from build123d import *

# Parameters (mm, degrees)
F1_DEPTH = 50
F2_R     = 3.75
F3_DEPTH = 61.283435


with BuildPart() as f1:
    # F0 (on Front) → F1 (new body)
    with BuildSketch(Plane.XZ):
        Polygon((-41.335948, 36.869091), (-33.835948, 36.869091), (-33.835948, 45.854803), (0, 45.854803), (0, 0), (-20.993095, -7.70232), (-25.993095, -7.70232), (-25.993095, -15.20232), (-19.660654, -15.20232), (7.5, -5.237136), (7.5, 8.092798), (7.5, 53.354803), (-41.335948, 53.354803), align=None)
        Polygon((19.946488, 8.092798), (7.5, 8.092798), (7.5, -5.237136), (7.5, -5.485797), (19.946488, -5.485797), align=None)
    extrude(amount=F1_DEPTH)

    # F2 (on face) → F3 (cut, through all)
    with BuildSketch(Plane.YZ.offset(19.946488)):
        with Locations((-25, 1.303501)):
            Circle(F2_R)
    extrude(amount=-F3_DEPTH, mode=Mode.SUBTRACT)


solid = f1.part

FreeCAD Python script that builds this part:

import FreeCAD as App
import Part
import Sketcher
Q = App.Units.Quantity

doc = App.newDocument("Part")
body = doc.addObject("PartDesign::Body", "Body")

sketch1 = body.newObject("Sketcher::SketchObject", "Sketch")
sketch1.AttachmentSupport = (doc.getObject("XZ_Plane"), [""])
sketch1.MapMode = "FlatFace"
sketch1.addGeometry([
    Part.LineSegment(App.Vector(-41.335948, 36.869091, 0), App.Vector(-33.835948, 36.869091, 0)),
    Part.LineSegment(App.Vector(-33.835948, 36.869091, 0), App.Vector(-33.835948, 45.854803, 0)),
    Part.LineSegment(App.Vector(-33.835948, 45.854803, 0), App.Vector(0, 45.854803, 0)),
    Part.LineSegment(App.Vector(0, 45.854803, 0), App.Vector(0, 0, 0)),
    Part.LineSegment(App.Vector(0, 0, 0), App.Vector(-20.993095, -7.70232, 0)),
    Part.LineSegment(App.Vector(-20.993095, -7.70232, 0), App.Vector(-25.993095, -7.70232, 0)),
    Part.LineSegment(App.Vector(-25.993095, -7.70232, 0), App.Vector(-25.993095, -15.20232, 0)),
    Part.LineSegment(App.Vector(-25.993095, -15.20232, 0), App.Vector(-19.660654, -15.20232, 0)),
    Part.LineSegment(App.Vector(-19.660654, -15.20232, 0), App.Vector(7.5, -5.237136, 0)),
    Part.LineSegment(App.Vector(7.5, -5.237136, 0), App.Vector(7.5, -5.485797, 0)),
    Part.LineSegment(App.Vector(7.5, -5.485797, 0), App.Vector(19.946488, -5.485797, 0)),
    Part.LineSegment(App.Vector(19.946488, -5.485797, 0), App.Vector(19.946488, 8.092798, 0)),
    Part.LineSegment(App.Vector(19.946488, 8.092798, 0), App.Vector(7.5, 8.092798, 0)),
    Part.LineSegment(App.Vector(7.5, 8.092798, 0), App.Vector(7.5, 53.354803, 0)),
    Part.LineSegment(App.Vector(7.5, 53.354803, 0), App.Vector(-41.335948, 53.354803, 0)),
    Part.LineSegment(App.Vector(-41.335948, 53.354803, 0), App.Vector(-41.335948, 36.869091, 0)),
], False)
sketch1.addConstraint([
    Sketcher.Constraint("Coincident", 0, 2, 1, 1),
    Sketcher.Constraint("Coincident", 1, 2, 2, 1),
    Sketcher.Constraint("Coincident", 2, 2, 3, 1),
    Sketcher.Constraint("Coincident", 3, 2, 4, 1),
    Sketcher.Constraint("Coincident", 4, 2, 5, 1),
    Sketcher.Constraint("Coincident", 5, 2, 6, 1),
    Sketcher.Constraint("Coincident", 6, 2, 7, 1),
    Sketcher.Constraint("Coincident", 7, 2, 8, 1),
    Sketcher.Constraint("Coincident", 8, 2, 9, 1),
    Sketcher.Constraint("Coincident", 9, 2, 10, 1),
    Sketcher.Constraint("Coincident", 10, 2, 11, 1),
    Sketcher.Constraint("Coincident", 11, 2, 12, 1),
    Sketcher.Constraint("Coincident", 12, 2, 13, 1),
    Sketcher.Constraint("Coincident", 13, 2, 14, 1),
    Sketcher.Constraint("Coincident", 14, 2, 15, 1),
    Sketcher.Constraint("Coincident", 15, 2, 0, 1),
    Sketcher.Constraint("Horizontal", 0),
    Sketcher.Constraint("Vertical", 1),
    Sketcher.Constraint("Horizontal", 2),
    Sketcher.Constraint("Vertical", 3),
    Sketcher.Constraint("Horizontal", 5),
    Sketcher.Constraint("Vertical", 6),
    Sketcher.Constraint("Horizontal", 7),
    Sketcher.Constraint("Vertical", 9),
    Sketcher.Constraint("Horizontal", 10),
    Sketcher.Constraint("Vertical", 11),
    Sketcher.Constraint("Horizontal", 12),
    Sketcher.Constraint("Vertical", 13),
    Sketcher.Constraint("Horizontal", 14),
    Sketcher.Constraint("Vertical", 15),
    Sketcher.Constraint("Coincident", 3, 2, -1, 1),
    Sketcher.Constraint("Parallel", 4, 8),
    Sketcher.Constraint("Vertical", 9, 2, 12, 2),
    Sketcher.Constraint("Equal", 0, 6),
    Sketcher.Constraint("DistanceX", 5, 2, 5, 1, Q("5 mm")),
    Sketcher.Constraint("DistanceX", 0, 1, 0, 2, Q("7.5 mm")),
    Sketcher.Constraint("DistanceX", -1, 1, 8, 2, Q("7.5 mm")),
    Sketcher.Constraint("DistanceY", 2, 2, 13, 2, Q("7.5 mm")),
    Sketcher.Constraint("DistanceX", 2, 1, 2, 2, Q("33.835948 mm")),
    Sketcher.Constraint("DistanceX", 7, 1, 7, 2, Q("6.332441 mm")),
    Sketcher.Constraint("DistanceY", 9, 2, 9, 1, Q("0.248661 mm")),
    Sketcher.Constraint("DistanceY", 15, 2, 15, 1, Q("16.485712 mm")),
    Sketcher.Constraint("Distance", 4, Q("22.36148 mm")),
    Sketcher.Constraint("DistanceX", 10, 1, 10, 2, Q("12.446488 mm")),
    Sketcher.Constraint("DistanceY", 3, 2, 3, 1, Q("45.854803 mm")),
    Sketcher.Constraint("DistanceY", 11, 1, 11, 2, Q("13.578595 mm")),
    Sketcher.Constraint("DistanceY", 13, 1, 13, 2, Q("45.262005 mm")),
])
pad1 = body.newObject("PartDesign::Pad", "Pad")
pad1.Profile = sketch1
pad1.Length = 50

sketch2 = body.newObject("Sketcher::SketchObject", "Sketch001")
sketch2.AttachmentSupport = (doc.getObject("YZ_Plane"), [""])
sketch2.MapMode = "FlatFace"
sketch2.AttachmentOffset = App.Placement(App.Vector(0, 0, 19.946488), App.Rotation())
sketch2.addGeometry(Part.Circle(App.Vector(-25, 1.303501, 0), App.Vector(0, 0, 1), 3.75), False)
sketch2.addConstraint([
    Sketcher.Constraint("Diameter", 0, Q("7.5 mm")),
    Sketcher.Constraint("DistanceX", 0, 3, -1, 1, Q("25 mm")),
    Sketcher.Constraint("DistanceY", -1, 1, 0, 3, Q("1.303501 mm")),
])
pocket1 = body.newObject("PartDesign::Pocket", "Pocket")
pocket1.Profile = sketch2
pocket1.Type = "ThroughAll"

doc.recompute()
